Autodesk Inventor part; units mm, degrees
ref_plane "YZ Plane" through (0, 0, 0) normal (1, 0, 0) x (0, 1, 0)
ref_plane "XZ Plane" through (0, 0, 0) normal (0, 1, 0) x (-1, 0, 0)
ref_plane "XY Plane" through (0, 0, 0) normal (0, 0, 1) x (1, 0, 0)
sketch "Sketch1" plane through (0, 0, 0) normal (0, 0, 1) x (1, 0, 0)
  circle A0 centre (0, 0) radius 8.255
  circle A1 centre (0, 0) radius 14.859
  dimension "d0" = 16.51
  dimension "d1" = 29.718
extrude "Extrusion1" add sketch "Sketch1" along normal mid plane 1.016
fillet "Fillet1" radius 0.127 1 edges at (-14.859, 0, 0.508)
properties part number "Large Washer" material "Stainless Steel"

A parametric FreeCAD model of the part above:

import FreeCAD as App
import Part
import Sketcher
from FreeCAD import Vector
Q = App.Units.Quantity


def edges_at(feature, points):
    """Names of the edges that pass closest to the given points."""
    edges = feature.Shape.Edges
    near = lambda p: min(range(len(edges)), key=lambda i: edges[i].distToShape(Part.Vertex(*p))[0])
    return sorted({f"Edge{near(p) + 1}" for p in points})

doc = App.newDocument("Part")
body = doc.addObject("PartDesign::Body", "Body")

sketch1 = body.newObject("Sketcher::SketchObject", "Sketch")
sketch1.AttachmentSupport = (doc.getObject("XY_Plane"), [""])
sketch1.MapMode = "FlatFace"
sketch1.addGeometry(Part.Circle(Vector(0, 0, 0), Vector(0, 0, 1), 15), False)
sketch1.addGeometry(Part.Circle(Vector(0, 0, 0), Vector(0, 0, 1), 8), False)
sketch1.addConstraint(Sketcher.Constraint("Coincident", 0, 3, -1, 1))
sketch1.addConstraint(Sketcher.Constraint("Coincident", 1, 3, -1, 1))
sketch1.addConstraint(Sketcher.Constraint("Diameter", 0, Q("1.17 in")))
sketch1.addConstraint(Sketcher.Constraint("Diameter", 1, Q("0.65 in")))
pad1 = body.newObject("PartDesign::Pad", "Pad")
pad1.Profile = sketch1
pad1.Length = Q("0.04 in")
pad1.Midplane = True
doc.recompute()

fillet = body.newObject("PartDesign::Fillet", "Fillet")
fillet.Base = (pad1, edges_at(pad1, [(-14.859, 0, 0.508)]))
fillet.Radius = Q("0.005 in")

doc.recompute()
